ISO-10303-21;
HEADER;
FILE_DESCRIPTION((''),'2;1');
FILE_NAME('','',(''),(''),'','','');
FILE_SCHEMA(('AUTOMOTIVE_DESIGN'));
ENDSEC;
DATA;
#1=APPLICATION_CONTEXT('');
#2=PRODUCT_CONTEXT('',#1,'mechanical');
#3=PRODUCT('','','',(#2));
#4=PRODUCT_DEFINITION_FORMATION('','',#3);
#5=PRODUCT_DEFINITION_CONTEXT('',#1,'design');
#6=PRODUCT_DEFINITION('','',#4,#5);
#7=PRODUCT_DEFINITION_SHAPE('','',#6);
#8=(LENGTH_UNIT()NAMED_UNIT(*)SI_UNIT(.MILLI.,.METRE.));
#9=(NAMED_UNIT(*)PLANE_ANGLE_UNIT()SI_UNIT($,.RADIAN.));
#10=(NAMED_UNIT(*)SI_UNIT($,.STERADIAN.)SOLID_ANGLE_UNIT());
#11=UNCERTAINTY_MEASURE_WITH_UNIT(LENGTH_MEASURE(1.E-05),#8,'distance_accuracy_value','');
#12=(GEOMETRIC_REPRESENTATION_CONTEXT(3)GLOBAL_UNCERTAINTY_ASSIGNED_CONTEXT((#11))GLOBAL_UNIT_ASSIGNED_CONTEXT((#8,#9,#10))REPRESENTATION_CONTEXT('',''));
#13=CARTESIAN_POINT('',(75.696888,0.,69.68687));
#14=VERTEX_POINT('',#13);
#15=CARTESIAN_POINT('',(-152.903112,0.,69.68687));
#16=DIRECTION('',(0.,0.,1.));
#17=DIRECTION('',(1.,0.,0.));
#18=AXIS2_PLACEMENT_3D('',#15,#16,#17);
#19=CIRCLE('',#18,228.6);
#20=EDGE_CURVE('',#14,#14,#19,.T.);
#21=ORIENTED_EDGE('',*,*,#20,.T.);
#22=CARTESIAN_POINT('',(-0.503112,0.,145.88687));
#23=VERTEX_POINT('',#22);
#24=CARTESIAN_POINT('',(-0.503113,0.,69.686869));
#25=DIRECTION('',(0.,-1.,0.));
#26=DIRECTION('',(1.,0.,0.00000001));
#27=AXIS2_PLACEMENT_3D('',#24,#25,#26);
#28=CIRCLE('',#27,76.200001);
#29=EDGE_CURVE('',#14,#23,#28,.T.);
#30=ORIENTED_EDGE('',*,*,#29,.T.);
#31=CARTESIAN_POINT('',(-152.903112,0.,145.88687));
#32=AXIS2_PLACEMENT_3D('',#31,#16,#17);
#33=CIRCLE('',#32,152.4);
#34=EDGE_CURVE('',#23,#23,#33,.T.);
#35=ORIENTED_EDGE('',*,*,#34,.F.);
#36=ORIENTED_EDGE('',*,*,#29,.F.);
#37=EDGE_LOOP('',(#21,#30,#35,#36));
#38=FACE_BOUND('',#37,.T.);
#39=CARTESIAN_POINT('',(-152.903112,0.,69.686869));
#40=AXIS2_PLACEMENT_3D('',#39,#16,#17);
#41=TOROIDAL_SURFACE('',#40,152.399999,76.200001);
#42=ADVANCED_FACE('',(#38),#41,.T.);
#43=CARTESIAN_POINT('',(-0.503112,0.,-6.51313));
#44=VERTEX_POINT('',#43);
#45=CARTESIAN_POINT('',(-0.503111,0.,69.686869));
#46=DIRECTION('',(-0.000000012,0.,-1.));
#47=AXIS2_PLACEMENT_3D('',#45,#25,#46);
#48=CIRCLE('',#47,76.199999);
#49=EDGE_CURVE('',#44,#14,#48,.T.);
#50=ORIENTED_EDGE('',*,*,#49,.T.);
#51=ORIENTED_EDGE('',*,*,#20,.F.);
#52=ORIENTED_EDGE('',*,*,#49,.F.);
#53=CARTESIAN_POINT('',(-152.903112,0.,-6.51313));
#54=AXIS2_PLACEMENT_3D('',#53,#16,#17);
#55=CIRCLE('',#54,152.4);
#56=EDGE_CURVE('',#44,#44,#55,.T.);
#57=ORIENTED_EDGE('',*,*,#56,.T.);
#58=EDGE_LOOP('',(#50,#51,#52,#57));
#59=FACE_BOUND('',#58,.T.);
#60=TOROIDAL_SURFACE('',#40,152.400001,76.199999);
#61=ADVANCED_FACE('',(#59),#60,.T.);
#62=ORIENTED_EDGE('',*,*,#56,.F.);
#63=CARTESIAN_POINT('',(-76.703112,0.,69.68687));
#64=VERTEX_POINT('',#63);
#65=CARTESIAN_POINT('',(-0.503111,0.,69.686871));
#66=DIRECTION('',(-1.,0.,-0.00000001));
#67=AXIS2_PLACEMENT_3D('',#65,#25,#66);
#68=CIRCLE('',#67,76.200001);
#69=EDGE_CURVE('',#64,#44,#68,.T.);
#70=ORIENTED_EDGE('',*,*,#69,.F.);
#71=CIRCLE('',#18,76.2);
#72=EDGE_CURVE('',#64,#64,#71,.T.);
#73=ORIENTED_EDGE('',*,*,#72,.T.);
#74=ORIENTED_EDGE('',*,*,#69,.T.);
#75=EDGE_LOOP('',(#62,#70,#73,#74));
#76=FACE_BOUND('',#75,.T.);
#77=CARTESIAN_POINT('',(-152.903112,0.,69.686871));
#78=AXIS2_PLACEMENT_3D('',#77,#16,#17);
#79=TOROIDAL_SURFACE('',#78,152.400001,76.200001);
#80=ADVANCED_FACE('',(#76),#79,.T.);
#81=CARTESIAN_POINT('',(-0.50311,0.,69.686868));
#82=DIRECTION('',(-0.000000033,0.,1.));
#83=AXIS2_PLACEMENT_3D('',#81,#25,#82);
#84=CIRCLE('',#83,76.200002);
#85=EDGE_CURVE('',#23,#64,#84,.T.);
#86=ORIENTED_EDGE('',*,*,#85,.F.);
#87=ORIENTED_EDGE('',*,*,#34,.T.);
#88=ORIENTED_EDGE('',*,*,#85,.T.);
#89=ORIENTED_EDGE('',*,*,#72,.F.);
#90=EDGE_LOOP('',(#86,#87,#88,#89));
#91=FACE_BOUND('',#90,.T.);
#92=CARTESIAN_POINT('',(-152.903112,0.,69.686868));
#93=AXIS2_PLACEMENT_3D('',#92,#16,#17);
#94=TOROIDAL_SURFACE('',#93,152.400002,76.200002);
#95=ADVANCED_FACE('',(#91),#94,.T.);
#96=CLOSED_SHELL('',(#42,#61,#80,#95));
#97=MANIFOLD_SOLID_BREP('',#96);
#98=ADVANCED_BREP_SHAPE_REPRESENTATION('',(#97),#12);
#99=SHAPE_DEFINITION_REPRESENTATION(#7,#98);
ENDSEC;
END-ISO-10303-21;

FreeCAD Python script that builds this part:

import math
import FreeCAD as App
import Part
import Sketcher
Q = App.Units.Quantity

doc = App.newDocument("Part")
body = doc.addObject("PartDesign::Body", "Body")

# Sketch on XZ plane
sketch1 = body.newObject("Sketcher::SketchObject", "Sketch")
sketch1.AttachmentSupport = (doc.getObject("XZ_Plane"), [""])
sketch1.MapMode = "FlatFace"
sketch1.addGeometry([
    Part.ArcOfCircle(Part.Circle(App.Vector(-0.503113, 69.686869, 0), App.Vector(0, 0, 1), 76.200001), math.radians(0.000001), math.radians(89.999999)),
    Part.ArcOfCircle(Part.Circle(App.Vector(-0.50311, 69.686868, 0), App.Vector(0, 0, 1), 76.200002), math.radians(90.000002), math.radians(179.999998)),
    Part.ArcOfCircle(Part.Circle(App.Vector(-0.503111, 69.686871, 0), App.Vector(0, 0, 1), 76.200001), math.radians(-179.999999), math.radians(-90.000001)),
    Part.ArcOfCircle(Part.Circle(App.Vector(-0.503111, 69.686869, 0), App.Vector(0, 0, 1), 76.199999), math.radians(-90.000001), math.radians(0.000001)),
], False)
sketch1.addGeometry(Part.LineSegment(App.Vector(-152.903112, -6.51313, 0), App.Vector(-152.903112, 145.88687, 0)), True)  # axis
sketch1.addConstraint([
    Sketcher.Constraint("Tangent", 0, 2, 1, 1),
    Sketcher.Constraint("Tangent", 1, 2, 2, 1),
    Sketcher.Constraint("Tangent", 2, 2, 3, 1),
    Sketcher.Constraint("Tangent", 3, 2, 0, 1),
    Sketcher.Constraint("Vertical", 4),
    Sketcher.Constraint("Equal", 0, 1),
    Sketcher.Constraint("Horizontal", 3, 3, 1, 2),
    Sketcher.Constraint("Horizontal", 1, 2, 3, 2),
    Sketcher.Constraint("Horizontal", 2, 2, 4, 1),
    Sketcher.Constraint("Horizontal", 0, 2, 4, 2),
    Sketcher.Constraint("Vertical", 3, 3, 0, 2),
    Sketcher.Constraint("Vertical", 0, 2, 2, 2),
    Sketcher.Constraint("Radius", 0, Q("3 in")),
    Sketcher.Constraint("DistanceX", 4, 1, 1, 2, Q("3 in")),
    Sketcher.Constraint("DistanceY", -1, 1, 0, 3, Q("69.686869 mm")),
    Sketcher.Constraint("DistanceX", 1, 3, -1, 1, Q("0.50311 mm")),
])
revolution = body.newObject("PartDesign::Revolution", "Revolution")
revolution.Profile = sketch1
revolution.ReferenceAxis = (sketch1, ["Axis0"])
revolution.Angle = 360

doc.recompute()
